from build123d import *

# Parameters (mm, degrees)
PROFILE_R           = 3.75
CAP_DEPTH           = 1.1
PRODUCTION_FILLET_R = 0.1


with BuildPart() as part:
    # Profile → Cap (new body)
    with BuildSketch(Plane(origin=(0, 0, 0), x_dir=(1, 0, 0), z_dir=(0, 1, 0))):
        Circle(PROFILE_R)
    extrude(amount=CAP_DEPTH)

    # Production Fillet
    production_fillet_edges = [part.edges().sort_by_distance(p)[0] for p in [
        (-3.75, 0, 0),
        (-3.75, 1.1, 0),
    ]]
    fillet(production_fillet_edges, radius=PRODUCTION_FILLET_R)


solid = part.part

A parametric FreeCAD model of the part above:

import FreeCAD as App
import Part
import Sketcher
Q = App.Units.Quantity


def edges_at(feature, points):
    """Names of the edges that pass closest to the given points."""
    edges = feature.Shape.Edges
    near = lambda p: min(range(len(edges)), key=lambda i: edges[i].distToShape(Part.Vertex(*p))[0])
    return sorted({f"Edge{near(p) + 1}" for p in points})

doc = App.newDocument("Part")
body = doc.addObject("PartDesign::Body", "Body")

sketch1 = doc.addObject("Sketcher::SketchObject", "Sketch")
body.addObject(sketch1)
sketch1.AttachmentSupport = (doc.XZ_Plane, [""])
sketch1.MapMode = "FlatFace"
sketch1.addGeometry(Part.Circle(App.Vector(0, 0, 0), App.Vector(0, 0, 1), 3.8), False)
sketch1.addConstraint([
    Sketcher.Constraint("Coincident", 0, 3, -1, 1),
    Sketcher.Constraint("Diameter", 0, Q("7.5 mm")),
])
pad1 = doc.addObject("PartDesign::Pad", "Pad")
body.addObject(pad1)
pad1.Profile = sketch1
pad1.Length = 1.1
pad1.Reversed = True
doc.recompute()

fillet = doc.addObject("PartDesign::Fillet", "Fillet")
body.addObject(fillet)
fillet.Base = (pad1, edges_at(pad1, [(-3.75, 0, 0), (-3.75, 1.1, 0)]))
fillet.Radius = 0.1

doc.recompute()
